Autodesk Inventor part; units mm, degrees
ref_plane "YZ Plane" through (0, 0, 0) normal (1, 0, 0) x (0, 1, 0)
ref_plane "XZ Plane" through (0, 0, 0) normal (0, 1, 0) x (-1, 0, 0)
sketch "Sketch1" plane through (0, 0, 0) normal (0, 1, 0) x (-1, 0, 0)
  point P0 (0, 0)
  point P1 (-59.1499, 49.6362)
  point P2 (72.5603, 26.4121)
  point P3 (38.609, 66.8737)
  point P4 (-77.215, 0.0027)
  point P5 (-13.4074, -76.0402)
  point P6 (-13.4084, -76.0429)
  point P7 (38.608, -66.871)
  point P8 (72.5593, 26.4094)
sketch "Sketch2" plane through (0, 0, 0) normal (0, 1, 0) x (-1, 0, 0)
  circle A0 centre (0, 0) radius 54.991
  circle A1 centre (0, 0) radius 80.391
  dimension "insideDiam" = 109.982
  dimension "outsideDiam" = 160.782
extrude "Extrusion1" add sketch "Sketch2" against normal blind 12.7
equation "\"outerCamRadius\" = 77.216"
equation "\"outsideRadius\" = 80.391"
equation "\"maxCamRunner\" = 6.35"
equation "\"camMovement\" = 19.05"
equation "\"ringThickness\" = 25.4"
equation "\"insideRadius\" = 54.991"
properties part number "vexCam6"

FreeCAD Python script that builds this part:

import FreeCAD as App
import Part
import Sketcher

V = App.Vector
Q = App.Units.Quantity

doc = App.newDocument("Part")
params = doc.addObject("Spreadsheet::Sheet", "Params")
for row, (alias, value) in enumerate([
    ("sketch1_diameter", "6.33 in"),
    ("sketch1_diameter2", "4.33 in"),
    ("pad1_length", "0.5 in"),
], start=1):
    params.set(f"A{row}", alias)
    params.set(f"B{row}", "=" + value)
    params.setAlias(f"B{row}", alias)

body = doc.addObject("PartDesign::Body", "Body")

# Sketch on XZ plane
sketch1 = body.newObject("Sketcher::SketchObject", "Sketch")
sketch1.AttachmentSupport = (doc.getObject("XZ_Plane"), [""])
sketch1.MapMode = "FlatFace"
sketch1.addGeometry(Part.Circle(V(0, 0, 0), V(0, 0, 1), 80), False)
sketch1.addGeometry(Part.Circle(V(0, 0, 0), V(0, 0, 1), 55), False)
sketch1.addConstraint(Sketcher.Constraint("Coincident", 0, 3, -1, 1))
sketch1.addConstraint(Sketcher.Constraint("Coincident", 1, 3, -1, 1))
sketch1.addConstraint(Sketcher.Constraint("Diameter", 0, Q("6.33 in")))
sketch1.addConstraint(Sketcher.Constraint("Diameter", 1, Q("4.33 in")))
sketch1.setExpression("Constraints[2]", "Params.sketch1_diameter")
sketch1.setExpression("Constraints[3]", "Params.sketch1_diameter2")
pad1 = body.newObject("PartDesign::Pad", "Pad")
pad1.Profile = sketch1
pad1.setExpression("Length", "Params.pad1_length")

doc.recompute()
